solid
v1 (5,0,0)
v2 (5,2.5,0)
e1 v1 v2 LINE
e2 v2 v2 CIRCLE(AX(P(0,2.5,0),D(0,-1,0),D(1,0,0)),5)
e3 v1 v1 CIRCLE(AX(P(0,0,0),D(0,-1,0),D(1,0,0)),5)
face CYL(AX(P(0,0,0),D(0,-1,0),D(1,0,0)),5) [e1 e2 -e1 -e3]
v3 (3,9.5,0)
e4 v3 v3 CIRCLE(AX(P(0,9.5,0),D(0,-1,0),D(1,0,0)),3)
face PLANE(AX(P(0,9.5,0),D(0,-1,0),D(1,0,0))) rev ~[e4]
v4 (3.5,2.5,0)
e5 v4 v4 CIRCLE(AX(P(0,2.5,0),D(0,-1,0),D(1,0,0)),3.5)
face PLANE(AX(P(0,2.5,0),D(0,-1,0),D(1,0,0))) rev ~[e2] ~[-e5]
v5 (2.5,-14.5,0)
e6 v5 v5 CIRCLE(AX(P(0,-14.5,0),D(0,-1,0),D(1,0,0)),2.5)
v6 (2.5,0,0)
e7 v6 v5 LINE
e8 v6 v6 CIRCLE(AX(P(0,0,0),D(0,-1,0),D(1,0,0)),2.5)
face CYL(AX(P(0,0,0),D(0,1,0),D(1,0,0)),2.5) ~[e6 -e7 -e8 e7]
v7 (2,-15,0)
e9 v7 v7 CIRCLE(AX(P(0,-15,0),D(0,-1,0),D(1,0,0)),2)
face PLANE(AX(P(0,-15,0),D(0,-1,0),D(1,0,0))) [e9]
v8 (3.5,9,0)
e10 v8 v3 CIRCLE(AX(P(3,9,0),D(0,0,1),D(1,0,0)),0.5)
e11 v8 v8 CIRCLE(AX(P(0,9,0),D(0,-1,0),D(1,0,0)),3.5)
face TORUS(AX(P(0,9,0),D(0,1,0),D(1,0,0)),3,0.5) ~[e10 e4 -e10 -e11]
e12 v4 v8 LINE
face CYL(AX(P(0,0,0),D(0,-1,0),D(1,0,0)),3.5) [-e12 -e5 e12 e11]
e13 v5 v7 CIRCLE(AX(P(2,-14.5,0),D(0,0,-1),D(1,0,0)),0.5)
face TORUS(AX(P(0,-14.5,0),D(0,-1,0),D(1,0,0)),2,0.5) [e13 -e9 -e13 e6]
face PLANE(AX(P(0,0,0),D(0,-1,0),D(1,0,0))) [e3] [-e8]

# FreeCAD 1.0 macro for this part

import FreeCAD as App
import Part
import Sketcher
from FreeCAD import Vector


def edges_at(feature, points):
    """Names of the edges that pass closest to the given points."""
    edges = feature.Shape.Edges
    near = lambda p: min(range(len(edges)), key=lambda i: edges[i].distToShape(Part.Vertex(*p))[0])
    return sorted({f"Edge{near(p) + 1}" for p in points})

doc = App.newDocument("Part")
body = doc.addObject("PartDesign::Body", "Body")

# Sketch on XZ plane
sketch1 = body.newObject("Sketcher::SketchObject", "Sketch")
sketch1.AttachmentSupport = (doc.getObject("XZ_Plane"), [""])
sketch1.MapMode = "FlatFace"
sketch1.addGeometry(Part.Circle(Vector(0, 0, 0), Vector(0, 0, 1), 2.5), False)
sketch1.addConstraint([
    Sketcher.Constraint("Coincident", 0, 3, -1, 1),
    Sketcher.Constraint("Diameter", 0, 5.0),
])
pad1 = body.newObject("PartDesign::Pad", "Pad")
pad1.Profile = sketch1
pad1.Length = 15

# Sketch on XZ plane
sketch2 = body.newObject("Sketcher::SketchObject", "Sketch001")
sketch2.AttachmentSupport = (doc.getObject("XZ_Plane"), [""])
sketch2.MapMode = "FlatFace"
sketch2.addGeometry(Part.Circle(Vector(0, 0, 0), Vector(0, 0, 1), 5), False)
sketch2.addConstraint([
    Sketcher.Constraint("Coincident", 0, 3, -1, 1),
    Sketcher.Constraint("Diameter", 0, 10.0),
])
pad2 = body.newObject("PartDesign::Pad", "Pad001")
pad2.Profile = sketch2
pad2.Length = 2.5
pad2.Reversed = True

# Sketch on XZ plane
sketch3 = body.newObject("Sketcher::SketchObject", "Sketch002")
sketch3.AttachmentSupport = (doc.getObject("XZ_Plane"), [""])
sketch3.MapMode = "FlatFace"
sketch3.addGeometry(Part.Circle(Vector(0, 0, 0), Vector(0, 0, 1), 3.5), False)
sketch3.addConstraint([
    Sketcher.Constraint("Coincident", 0, 3, -1, 1),
    Sketcher.Constraint("Diameter", 0, 7.0),
])
pad3 = body.newObject("PartDesign::Pad", "Pad002")
pad3.Profile = sketch3
pad3.Length = 9.5
pad3.Reversed = True
doc.recompute()

fillet = body.newObject("PartDesign::Fillet", "Fillet")
fillet.Base = (pad3, edges_at(pad3, [(-3.5, 9.5, 0)]))
fillet.Radius = 0.5
doc.recompute()

fillet2 = body.newObject("PartDesign::Fillet", "Fillet001")
fillet2.Base = (fillet, edges_at(fillet, [(-2.5, -15, 0)]))
fillet2.Radius = 0.5

doc.recompute()
